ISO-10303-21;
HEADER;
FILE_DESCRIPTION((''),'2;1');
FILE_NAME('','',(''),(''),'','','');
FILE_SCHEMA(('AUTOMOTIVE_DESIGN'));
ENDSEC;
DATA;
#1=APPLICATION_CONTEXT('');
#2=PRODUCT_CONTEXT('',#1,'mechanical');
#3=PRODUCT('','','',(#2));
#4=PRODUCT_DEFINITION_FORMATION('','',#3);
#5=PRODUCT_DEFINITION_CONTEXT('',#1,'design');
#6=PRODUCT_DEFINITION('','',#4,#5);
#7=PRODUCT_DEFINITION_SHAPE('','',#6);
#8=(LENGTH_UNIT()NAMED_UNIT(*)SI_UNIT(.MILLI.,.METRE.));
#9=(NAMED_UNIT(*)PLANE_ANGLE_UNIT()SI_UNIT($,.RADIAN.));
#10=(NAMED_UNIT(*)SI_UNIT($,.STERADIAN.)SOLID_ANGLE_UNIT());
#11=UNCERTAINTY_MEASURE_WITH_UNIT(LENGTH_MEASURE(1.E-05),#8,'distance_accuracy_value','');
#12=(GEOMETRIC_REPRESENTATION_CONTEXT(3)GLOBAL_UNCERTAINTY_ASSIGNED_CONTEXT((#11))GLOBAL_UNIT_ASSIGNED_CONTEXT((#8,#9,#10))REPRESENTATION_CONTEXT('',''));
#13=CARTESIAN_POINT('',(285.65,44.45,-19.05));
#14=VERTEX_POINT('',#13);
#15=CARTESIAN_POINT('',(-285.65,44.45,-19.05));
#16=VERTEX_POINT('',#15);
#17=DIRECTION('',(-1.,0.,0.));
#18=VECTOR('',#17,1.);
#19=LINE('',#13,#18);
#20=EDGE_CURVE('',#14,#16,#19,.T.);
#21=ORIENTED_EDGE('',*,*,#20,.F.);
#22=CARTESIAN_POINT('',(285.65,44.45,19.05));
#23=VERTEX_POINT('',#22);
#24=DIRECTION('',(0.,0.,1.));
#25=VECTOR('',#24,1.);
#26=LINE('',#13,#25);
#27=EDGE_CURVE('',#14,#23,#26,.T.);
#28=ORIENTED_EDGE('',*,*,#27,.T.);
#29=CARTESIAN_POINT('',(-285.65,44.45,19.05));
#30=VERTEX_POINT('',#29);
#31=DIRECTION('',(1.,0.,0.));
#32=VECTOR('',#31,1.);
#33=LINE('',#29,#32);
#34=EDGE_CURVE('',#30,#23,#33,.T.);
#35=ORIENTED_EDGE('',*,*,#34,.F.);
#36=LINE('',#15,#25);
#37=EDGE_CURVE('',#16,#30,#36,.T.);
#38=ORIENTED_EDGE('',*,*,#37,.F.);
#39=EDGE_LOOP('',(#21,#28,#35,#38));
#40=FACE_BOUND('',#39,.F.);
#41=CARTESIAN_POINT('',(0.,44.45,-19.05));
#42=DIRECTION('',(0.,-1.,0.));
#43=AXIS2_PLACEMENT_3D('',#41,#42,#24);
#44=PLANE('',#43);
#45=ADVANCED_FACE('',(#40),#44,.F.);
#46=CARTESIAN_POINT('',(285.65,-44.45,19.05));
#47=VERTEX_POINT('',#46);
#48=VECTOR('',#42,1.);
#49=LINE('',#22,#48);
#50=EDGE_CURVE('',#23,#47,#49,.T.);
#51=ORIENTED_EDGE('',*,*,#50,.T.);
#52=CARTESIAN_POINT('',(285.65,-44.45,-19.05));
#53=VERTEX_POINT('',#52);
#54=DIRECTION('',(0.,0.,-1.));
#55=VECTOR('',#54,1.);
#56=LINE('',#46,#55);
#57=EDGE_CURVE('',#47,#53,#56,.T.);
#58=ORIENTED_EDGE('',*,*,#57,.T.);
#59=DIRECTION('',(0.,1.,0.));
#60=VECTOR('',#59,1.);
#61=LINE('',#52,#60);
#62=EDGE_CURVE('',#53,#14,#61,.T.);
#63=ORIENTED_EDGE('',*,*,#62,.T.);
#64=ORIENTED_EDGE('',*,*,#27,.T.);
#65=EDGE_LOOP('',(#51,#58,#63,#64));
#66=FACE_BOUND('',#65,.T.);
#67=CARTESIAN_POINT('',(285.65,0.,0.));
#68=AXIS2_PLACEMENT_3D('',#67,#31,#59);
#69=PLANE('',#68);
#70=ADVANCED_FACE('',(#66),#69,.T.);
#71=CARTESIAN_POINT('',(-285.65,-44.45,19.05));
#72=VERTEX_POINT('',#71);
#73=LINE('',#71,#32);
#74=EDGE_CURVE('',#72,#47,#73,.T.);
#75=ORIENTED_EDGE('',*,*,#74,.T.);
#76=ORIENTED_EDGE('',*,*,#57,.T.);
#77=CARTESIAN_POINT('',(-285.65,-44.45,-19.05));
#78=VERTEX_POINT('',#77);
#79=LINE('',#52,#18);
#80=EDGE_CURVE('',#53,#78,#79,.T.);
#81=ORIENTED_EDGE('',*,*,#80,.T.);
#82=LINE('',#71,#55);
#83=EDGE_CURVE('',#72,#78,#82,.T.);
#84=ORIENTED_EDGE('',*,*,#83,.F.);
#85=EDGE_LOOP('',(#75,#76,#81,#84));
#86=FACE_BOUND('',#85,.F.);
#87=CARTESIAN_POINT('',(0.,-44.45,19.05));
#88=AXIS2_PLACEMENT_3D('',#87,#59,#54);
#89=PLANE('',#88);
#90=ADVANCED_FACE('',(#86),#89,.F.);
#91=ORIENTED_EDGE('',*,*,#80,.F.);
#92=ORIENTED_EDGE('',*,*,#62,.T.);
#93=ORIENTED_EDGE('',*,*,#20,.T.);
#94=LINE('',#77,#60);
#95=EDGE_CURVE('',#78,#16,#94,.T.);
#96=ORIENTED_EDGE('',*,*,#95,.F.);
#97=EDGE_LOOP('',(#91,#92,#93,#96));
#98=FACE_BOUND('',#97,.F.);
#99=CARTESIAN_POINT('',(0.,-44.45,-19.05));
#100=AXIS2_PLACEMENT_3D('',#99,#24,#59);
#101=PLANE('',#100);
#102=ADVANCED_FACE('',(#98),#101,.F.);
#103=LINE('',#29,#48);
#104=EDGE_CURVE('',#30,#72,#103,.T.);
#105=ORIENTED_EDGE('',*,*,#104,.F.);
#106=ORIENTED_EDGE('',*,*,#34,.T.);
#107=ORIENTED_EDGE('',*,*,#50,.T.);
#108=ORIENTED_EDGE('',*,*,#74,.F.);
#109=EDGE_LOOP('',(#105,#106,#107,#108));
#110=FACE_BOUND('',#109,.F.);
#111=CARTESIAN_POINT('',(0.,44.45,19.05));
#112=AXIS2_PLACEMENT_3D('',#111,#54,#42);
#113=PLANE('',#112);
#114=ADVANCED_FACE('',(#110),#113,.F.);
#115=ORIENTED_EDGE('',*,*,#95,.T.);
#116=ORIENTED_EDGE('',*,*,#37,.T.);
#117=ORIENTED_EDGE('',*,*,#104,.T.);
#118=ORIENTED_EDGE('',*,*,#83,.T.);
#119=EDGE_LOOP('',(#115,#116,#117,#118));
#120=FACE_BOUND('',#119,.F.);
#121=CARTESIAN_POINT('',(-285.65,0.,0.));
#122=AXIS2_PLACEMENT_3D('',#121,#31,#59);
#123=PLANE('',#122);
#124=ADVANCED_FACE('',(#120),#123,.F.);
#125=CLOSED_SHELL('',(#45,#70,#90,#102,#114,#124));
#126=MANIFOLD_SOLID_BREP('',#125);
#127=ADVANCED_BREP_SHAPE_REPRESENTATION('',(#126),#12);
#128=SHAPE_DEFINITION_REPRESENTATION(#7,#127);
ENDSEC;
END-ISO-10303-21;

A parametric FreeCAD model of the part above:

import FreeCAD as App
import Part
import Sketcher

V = App.Vector
Q = App.Units.Quantity


def add_polygon(sketch, points):
    """Adds a closed chain of lines whose ends are joined by coincident constraints."""
    first, n = sketch.GeometryCount, len(points)
    for a, b in zip(points, points[1:] + points[:1]):
        sketch.addGeometry(Part.LineSegment(App.Vector(*a, 0), App.Vector(*b, 0)), False)
    for i in range(n):
        sketch.addConstraint(Sketcher.Constraint("Coincident", first + i, 2, first + (i + 1) % n, 1))

doc = App.newDocument("Part")
body = doc.addObject("PartDesign::Body", "Body")

# Sketch on YZ plane
sketch1 = body.newObject("Sketcher::SketchObject", "Sketch")
sketch1.AttachmentSupport = (doc.getObject("YZ_Plane"), [""])
sketch1.MapMode = "FlatFace"
add_polygon(sketch1, [(44, -19), (44, 19), (-44, 19), (-44, -19)])  # lines 0-3
sketch1.addConstraint([
    Sketcher.Constraint("Vertical", 0),
    Sketcher.Constraint("Horizontal", 1),
    Sketcher.Constraint("Vertical", 2),
    Sketcher.Constraint("Horizontal", 3),
    Sketcher.Constraint("Symmetric", 0, 2, 2, 2, -1, 1),
    Sketcher.Constraint("DistanceX", 1, 2, 1, 1, Q("3.5 in")),
    Sketcher.Constraint("DistanceY", 0, 1, 0, 2, Q("1.5 in")),
])
pad1 = body.newObject("PartDesign::Pad", "Pad")
pad1.Profile = sketch1
pad1.Length = 571.3
pad1.Midplane = True

doc.recompute()
